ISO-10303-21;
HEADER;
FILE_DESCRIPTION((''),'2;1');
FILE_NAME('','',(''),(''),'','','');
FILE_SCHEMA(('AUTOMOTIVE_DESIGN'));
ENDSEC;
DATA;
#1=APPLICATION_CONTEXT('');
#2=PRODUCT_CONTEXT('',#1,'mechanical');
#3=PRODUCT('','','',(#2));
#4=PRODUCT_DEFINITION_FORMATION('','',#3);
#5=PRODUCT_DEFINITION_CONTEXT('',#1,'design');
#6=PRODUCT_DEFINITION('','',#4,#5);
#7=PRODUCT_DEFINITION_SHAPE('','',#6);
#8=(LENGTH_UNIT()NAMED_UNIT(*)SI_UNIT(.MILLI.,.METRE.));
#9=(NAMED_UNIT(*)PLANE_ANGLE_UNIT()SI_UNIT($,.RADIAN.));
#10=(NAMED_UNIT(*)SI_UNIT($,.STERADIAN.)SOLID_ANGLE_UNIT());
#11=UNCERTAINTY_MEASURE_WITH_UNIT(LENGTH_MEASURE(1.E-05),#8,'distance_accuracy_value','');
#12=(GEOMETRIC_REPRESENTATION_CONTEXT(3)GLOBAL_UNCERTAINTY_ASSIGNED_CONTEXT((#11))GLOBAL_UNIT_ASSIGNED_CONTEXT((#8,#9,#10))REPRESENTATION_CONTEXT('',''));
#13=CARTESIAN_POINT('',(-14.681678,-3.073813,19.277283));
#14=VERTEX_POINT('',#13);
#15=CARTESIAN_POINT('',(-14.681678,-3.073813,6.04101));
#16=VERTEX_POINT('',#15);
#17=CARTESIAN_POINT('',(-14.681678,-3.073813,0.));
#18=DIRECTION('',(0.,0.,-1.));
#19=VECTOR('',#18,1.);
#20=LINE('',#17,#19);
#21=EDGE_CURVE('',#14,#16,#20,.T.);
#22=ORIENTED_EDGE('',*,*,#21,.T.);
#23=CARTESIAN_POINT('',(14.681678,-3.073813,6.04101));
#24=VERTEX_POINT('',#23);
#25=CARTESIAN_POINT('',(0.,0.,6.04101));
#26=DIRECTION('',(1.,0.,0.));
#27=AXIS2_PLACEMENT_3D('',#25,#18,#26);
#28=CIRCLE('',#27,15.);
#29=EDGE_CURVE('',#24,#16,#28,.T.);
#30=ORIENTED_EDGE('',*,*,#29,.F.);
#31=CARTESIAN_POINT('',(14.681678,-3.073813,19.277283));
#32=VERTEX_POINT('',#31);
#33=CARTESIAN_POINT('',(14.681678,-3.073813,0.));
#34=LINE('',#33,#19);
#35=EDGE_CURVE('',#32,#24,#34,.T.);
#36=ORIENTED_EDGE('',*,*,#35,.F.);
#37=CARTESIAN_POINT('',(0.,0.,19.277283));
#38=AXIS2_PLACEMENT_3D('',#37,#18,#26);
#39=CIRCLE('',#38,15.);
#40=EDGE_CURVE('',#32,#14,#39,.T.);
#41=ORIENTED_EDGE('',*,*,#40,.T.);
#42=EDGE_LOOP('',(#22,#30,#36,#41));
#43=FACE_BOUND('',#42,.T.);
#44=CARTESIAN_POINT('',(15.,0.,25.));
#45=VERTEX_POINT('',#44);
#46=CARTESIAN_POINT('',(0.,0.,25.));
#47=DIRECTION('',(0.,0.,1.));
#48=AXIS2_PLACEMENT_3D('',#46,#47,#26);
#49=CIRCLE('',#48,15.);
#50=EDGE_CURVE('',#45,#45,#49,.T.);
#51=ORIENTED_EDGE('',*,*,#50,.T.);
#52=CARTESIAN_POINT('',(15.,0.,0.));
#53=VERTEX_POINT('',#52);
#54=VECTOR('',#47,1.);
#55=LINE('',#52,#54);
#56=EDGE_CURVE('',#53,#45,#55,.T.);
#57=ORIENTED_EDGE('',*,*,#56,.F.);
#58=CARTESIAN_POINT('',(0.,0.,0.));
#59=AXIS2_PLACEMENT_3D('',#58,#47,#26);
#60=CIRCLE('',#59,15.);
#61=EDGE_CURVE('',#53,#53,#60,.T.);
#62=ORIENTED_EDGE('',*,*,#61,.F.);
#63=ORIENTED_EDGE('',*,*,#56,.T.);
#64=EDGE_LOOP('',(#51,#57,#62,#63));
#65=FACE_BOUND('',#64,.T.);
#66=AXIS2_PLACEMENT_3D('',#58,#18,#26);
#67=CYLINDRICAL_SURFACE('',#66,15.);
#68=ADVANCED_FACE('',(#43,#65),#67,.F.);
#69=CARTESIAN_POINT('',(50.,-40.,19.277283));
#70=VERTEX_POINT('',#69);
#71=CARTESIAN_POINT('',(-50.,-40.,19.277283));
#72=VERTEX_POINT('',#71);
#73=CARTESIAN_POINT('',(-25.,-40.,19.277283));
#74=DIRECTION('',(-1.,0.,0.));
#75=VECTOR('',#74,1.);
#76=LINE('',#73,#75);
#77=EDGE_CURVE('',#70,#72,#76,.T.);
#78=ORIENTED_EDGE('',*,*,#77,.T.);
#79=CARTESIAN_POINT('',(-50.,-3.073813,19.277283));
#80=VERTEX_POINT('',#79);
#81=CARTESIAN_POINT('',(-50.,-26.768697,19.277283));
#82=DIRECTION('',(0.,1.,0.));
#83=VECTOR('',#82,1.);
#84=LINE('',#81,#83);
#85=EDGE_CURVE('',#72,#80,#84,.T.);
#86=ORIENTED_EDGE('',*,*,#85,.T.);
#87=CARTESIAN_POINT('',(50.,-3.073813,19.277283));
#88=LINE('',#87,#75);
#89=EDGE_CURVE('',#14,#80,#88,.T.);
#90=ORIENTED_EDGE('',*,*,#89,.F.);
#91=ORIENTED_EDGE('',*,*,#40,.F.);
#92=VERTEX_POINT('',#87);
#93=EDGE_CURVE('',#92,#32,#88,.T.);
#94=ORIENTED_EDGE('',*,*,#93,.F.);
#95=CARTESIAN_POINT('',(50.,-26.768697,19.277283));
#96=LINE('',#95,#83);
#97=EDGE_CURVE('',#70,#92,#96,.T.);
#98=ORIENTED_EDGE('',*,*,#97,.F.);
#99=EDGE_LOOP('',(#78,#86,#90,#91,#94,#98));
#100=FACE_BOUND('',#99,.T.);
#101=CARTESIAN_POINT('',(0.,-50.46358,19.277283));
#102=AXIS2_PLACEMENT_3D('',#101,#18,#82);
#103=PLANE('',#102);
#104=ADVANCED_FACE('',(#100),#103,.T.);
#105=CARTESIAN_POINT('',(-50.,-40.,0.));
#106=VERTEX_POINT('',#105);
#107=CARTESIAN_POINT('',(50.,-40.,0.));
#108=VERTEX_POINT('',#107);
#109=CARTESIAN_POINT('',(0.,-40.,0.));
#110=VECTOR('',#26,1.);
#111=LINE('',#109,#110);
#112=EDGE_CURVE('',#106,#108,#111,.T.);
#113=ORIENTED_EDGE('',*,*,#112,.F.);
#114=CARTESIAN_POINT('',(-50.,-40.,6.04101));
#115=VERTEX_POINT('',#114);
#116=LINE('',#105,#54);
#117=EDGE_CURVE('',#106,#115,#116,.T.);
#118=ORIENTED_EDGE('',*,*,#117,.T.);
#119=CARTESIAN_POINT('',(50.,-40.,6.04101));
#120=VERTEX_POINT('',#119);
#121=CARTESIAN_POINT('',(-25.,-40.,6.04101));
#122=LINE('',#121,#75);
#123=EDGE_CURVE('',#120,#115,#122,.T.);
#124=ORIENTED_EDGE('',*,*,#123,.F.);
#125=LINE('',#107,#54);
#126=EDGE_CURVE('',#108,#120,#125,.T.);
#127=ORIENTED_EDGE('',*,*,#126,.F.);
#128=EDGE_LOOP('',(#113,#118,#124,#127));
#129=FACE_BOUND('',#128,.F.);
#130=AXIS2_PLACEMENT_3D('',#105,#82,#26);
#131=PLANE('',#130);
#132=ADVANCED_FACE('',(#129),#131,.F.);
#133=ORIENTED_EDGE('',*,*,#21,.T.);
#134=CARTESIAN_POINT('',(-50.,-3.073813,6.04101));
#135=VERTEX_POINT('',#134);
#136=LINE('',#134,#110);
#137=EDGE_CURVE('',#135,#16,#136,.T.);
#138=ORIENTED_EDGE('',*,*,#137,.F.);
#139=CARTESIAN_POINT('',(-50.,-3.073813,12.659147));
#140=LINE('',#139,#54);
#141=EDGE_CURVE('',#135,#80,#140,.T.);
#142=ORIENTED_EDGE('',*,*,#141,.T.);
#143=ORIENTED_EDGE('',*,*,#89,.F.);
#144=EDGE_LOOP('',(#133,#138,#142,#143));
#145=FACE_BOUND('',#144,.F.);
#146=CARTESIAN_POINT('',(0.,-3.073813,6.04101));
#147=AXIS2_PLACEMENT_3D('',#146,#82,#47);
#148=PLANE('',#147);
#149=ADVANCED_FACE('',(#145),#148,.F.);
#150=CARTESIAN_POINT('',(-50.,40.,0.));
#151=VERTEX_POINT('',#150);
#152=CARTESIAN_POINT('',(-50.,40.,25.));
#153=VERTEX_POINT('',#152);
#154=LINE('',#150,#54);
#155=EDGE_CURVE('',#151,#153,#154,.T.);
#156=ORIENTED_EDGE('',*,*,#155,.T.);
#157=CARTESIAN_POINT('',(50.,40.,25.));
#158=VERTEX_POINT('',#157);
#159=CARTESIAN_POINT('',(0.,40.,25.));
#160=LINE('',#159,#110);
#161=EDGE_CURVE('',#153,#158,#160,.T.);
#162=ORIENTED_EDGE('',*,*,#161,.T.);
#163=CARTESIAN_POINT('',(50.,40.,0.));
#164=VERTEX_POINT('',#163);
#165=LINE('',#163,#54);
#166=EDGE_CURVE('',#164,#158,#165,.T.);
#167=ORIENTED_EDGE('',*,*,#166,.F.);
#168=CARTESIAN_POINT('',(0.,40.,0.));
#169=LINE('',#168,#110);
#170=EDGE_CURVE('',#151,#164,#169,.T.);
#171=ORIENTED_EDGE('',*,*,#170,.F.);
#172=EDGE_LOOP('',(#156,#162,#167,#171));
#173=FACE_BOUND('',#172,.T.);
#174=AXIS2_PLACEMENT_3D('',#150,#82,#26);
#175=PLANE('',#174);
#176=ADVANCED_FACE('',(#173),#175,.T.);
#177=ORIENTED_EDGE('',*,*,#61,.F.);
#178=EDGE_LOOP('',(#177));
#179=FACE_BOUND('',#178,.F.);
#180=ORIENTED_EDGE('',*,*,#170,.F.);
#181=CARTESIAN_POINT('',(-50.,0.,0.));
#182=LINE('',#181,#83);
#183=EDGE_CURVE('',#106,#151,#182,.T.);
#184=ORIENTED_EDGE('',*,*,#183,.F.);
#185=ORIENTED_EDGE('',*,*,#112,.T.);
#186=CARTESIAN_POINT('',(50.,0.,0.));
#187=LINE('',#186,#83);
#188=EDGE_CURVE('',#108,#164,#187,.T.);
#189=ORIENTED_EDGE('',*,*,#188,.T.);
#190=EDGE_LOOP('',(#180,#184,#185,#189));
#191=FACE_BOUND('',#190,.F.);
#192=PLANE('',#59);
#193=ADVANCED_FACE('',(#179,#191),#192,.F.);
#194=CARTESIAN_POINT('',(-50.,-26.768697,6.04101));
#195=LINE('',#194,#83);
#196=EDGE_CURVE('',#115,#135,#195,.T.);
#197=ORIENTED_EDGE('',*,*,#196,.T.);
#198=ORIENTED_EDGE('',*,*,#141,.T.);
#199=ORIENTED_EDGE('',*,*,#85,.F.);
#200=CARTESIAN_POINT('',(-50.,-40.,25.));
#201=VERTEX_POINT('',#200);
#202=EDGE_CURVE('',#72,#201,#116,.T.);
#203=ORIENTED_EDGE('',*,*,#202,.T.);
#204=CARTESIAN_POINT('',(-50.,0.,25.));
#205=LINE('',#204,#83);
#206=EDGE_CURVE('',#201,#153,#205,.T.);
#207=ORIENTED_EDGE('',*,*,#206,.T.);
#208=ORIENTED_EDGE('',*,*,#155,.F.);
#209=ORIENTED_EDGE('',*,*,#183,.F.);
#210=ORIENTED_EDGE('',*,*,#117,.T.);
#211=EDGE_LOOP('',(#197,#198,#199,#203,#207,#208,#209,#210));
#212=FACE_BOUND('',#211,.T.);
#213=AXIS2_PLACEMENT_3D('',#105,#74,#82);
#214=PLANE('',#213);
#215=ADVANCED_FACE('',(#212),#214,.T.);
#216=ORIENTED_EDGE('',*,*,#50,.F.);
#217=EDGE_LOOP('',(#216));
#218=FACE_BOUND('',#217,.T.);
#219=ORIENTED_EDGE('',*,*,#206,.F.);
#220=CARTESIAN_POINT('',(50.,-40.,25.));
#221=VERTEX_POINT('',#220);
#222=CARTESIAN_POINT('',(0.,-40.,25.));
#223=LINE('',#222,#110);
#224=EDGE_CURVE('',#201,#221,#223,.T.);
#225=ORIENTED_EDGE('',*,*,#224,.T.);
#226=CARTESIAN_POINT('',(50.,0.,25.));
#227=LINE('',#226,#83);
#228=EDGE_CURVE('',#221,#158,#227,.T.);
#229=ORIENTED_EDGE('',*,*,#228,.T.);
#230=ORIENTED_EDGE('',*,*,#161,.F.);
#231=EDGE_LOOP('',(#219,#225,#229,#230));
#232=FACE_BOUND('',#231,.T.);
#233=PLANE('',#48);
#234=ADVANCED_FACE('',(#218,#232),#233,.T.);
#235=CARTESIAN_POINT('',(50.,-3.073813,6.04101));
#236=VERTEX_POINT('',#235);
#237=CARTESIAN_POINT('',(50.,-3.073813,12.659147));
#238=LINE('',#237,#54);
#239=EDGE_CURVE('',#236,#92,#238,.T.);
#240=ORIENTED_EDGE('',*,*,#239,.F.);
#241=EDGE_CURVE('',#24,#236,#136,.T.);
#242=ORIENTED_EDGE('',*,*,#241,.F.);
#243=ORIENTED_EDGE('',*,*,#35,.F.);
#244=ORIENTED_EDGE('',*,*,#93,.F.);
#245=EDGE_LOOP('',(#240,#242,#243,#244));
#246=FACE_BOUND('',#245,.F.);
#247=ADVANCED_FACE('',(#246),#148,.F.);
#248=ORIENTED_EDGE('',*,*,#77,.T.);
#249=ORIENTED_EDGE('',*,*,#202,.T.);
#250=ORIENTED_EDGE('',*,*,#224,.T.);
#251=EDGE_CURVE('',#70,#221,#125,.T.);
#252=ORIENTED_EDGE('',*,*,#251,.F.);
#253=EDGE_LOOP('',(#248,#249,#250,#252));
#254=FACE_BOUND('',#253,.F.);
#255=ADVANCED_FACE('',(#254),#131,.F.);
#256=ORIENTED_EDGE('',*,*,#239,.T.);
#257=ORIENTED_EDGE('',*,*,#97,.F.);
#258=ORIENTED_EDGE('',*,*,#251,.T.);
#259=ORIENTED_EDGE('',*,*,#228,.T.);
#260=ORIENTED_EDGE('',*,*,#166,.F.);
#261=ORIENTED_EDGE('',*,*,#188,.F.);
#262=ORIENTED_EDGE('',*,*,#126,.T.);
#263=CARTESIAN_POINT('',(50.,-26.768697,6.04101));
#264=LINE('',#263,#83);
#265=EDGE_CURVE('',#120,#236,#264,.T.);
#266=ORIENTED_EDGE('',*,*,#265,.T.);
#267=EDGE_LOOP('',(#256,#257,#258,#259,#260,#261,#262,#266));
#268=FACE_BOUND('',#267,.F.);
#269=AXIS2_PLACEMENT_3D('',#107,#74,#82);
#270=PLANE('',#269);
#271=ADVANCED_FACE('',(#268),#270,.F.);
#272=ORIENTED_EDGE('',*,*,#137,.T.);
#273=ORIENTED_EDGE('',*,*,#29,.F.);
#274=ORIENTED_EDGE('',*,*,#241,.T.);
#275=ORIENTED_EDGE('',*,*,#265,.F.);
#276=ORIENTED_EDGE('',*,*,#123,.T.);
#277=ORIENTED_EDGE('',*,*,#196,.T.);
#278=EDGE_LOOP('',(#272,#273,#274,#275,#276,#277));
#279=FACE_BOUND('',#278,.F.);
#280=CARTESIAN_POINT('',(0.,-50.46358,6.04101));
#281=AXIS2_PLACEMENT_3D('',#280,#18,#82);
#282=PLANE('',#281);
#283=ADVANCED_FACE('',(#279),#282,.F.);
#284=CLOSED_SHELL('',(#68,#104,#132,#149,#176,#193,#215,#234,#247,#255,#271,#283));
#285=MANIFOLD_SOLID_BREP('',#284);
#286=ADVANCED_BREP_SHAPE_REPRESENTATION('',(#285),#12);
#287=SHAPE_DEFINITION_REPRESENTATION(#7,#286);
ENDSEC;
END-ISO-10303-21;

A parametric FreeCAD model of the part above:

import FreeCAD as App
import Part
import Sketcher

V = App.Vector


def add_polygon(sketch, points):
    """Adds a closed chain of lines whose ends are joined by coincident constraints."""
    first, n = sketch.GeometryCount, len(points)
    for a, b in zip(points, points[1:] + points[:1]):
        sketch.addGeometry(Part.LineSegment(App.Vector(*a, 0), App.Vector(*b, 0)), False)
    for i in range(n):
        sketch.addConstraint(Sketcher.Constraint("Coincident", first + i, 2, first + (i + 1) % n, 1))

doc = App.newDocument("Part")
body = doc.addObject("PartDesign::Body", "Body")

# Sketch on XY plane
sketch1 = doc.addObject("Sketcher::SketchObject", "Sketch")
body.addObject(sketch1)
sketch1.AttachmentSupport = (doc.XY_Plane, [""])
sketch1.MapMode = "FlatFace"
add_polygon(sketch1, [(-50, 40), (-50, -40), (50, -40), (50, 40)])  # lines 0-3
sketch1.addGeometry(Part.Circle(V(0, 0, 0), V(0, 0, 1), 15), False)  # 4
sketch1.addConstraint([
    Sketcher.Constraint("Vertical", 0),
    Sketcher.Constraint("Horizontal", 1),
    Sketcher.Constraint("Vertical", 2),
    Sketcher.Constraint("Horizontal", 3),
    Sketcher.Constraint("Coincident", 4, 3, -1, 1),
    Sketcher.Constraint("Symmetric", 0, 2, 2, 2, -1, 1),
    Sketcher.Constraint("Diameter", 4, 30.0),
    Sketcher.Constraint("DistanceX", 1, 1, 1, 2, 100.0),
    Sketcher.Constraint("DistanceY", 0, 2, 0, 1, 80.0),
])
pad1 = doc.addObject("PartDesign::Pad", "Pad")
body.addObject(pad1)
pad1.Profile = sketch1
pad1.Length = 25

# Sketch on YZ plane
sketch2 = doc.addObject("Sketcher::SketchObject", "Sketch001")
body.addObject(sketch2)
sketch2.AttachmentSupport = (doc.YZ_Plane, [""])
sketch2.MapMode = "FlatFace"
add_polygon(sketch2, [(-50, 19), (-50, 6), (-3, 6), (-3, 19)])  # lines 0-3
sketch2.addConstraint([
    Sketcher.Constraint("Vertical", 0),
    Sketcher.Constraint("Horizontal", 1),
    Sketcher.Constraint("Vertical", 2),
    Sketcher.Constraint("Horizontal", 3),
    Sketcher.Constraint("DistanceX", 1, 1, 1, 2, 47.389767),
    Sketcher.Constraint("DistanceY", 0, 2, 0, 1, 13.236273),
    Sketcher.Constraint("DistanceX", 0, 2, -1, 1, 50.46358),
    Sketcher.Constraint("DistanceY", -1, 1, 0, 2, 6.04101),
])
pocket1 = doc.addObject("PartDesign::Pocket", "Pocket")
body.addObject(pocket1)
pocket1.Profile = sketch2
pocket1.Length = 100
pocket1.Midplane = True

doc.recompute()
